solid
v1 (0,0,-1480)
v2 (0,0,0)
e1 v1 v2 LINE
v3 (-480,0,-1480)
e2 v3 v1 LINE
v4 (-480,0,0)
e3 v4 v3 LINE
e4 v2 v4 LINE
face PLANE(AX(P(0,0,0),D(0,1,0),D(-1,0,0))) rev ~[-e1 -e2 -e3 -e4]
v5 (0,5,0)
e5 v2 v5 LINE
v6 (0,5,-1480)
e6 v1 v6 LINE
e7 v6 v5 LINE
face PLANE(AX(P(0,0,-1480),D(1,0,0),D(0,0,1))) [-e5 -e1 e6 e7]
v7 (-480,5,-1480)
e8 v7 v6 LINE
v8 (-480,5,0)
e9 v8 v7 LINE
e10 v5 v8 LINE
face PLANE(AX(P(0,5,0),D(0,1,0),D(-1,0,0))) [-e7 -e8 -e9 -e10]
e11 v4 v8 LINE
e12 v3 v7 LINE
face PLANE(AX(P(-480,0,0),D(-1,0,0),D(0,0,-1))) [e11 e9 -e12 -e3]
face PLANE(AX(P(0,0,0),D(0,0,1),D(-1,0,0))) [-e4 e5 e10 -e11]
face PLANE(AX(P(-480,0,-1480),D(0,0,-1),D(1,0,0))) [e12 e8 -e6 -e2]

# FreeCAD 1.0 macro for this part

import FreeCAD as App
import Part
import Sketcher

V = App.Vector
Q = App.Units.Quantity

doc = App.newDocument("Part")
body = doc.addObject("PartDesign::Body", "Body")

# Sketch on XZ plane
sketch1 = body.newObject("Sketcher::SketchObject", "Sketch")
sketch1.AttachmentSupport = (doc.getObject("XZ_Plane"), [""])
sketch1.MapMode = "FlatFace"
sketch1.addGeometry(Part.LineSegment(V(-480, 0, 0), V(0, 0, 0)), False)
sketch1.addGeometry(Part.LineSegment(V(0, 0, 0), V(0, -1480, 0)), False)
sketch1.addGeometry(Part.LineSegment(V(0, -1480, 0), V(-480, -1480, 0)), False)
sketch1.addGeometry(Part.LineSegment(V(-480, -1480, 0), V(-480, 0, 0)), False)
sketch1.addConstraint(Sketcher.Constraint("Coincident", 0, 2, 1, 1))
sketch1.addConstraint(Sketcher.Constraint("Coincident", 1, 2, 2, 1))
sketch1.addConstraint(Sketcher.Constraint("Coincident", 2, 2, 3, 1))
sketch1.addConstraint(Sketcher.Constraint("Coincident", 3, 2, 0, 1))
sketch1.addConstraint(Sketcher.Constraint("Horizontal", 0))
sketch1.addConstraint(Sketcher.Constraint("Vertical", 1))
sketch1.addConstraint(Sketcher.Constraint("Horizontal", 2))
sketch1.addConstraint(Sketcher.Constraint("Vertical", 3))
sketch1.addConstraint(Sketcher.Constraint("Coincident", 0, 2, -1, 1))
sketch1.addConstraint(Sketcher.Constraint("DistanceX", 0, 1, 0, 2, Q("480 mm")))
sketch1.addConstraint(Sketcher.Constraint("DistanceY", 1, 2, 1, 1, Q("1480 mm")))
pad1 = body.newObject("PartDesign::Pad", "Pad")
pad1.Profile = sketch1
pad1.Length = 5
pad1.Reversed = True

doc.recompute()
